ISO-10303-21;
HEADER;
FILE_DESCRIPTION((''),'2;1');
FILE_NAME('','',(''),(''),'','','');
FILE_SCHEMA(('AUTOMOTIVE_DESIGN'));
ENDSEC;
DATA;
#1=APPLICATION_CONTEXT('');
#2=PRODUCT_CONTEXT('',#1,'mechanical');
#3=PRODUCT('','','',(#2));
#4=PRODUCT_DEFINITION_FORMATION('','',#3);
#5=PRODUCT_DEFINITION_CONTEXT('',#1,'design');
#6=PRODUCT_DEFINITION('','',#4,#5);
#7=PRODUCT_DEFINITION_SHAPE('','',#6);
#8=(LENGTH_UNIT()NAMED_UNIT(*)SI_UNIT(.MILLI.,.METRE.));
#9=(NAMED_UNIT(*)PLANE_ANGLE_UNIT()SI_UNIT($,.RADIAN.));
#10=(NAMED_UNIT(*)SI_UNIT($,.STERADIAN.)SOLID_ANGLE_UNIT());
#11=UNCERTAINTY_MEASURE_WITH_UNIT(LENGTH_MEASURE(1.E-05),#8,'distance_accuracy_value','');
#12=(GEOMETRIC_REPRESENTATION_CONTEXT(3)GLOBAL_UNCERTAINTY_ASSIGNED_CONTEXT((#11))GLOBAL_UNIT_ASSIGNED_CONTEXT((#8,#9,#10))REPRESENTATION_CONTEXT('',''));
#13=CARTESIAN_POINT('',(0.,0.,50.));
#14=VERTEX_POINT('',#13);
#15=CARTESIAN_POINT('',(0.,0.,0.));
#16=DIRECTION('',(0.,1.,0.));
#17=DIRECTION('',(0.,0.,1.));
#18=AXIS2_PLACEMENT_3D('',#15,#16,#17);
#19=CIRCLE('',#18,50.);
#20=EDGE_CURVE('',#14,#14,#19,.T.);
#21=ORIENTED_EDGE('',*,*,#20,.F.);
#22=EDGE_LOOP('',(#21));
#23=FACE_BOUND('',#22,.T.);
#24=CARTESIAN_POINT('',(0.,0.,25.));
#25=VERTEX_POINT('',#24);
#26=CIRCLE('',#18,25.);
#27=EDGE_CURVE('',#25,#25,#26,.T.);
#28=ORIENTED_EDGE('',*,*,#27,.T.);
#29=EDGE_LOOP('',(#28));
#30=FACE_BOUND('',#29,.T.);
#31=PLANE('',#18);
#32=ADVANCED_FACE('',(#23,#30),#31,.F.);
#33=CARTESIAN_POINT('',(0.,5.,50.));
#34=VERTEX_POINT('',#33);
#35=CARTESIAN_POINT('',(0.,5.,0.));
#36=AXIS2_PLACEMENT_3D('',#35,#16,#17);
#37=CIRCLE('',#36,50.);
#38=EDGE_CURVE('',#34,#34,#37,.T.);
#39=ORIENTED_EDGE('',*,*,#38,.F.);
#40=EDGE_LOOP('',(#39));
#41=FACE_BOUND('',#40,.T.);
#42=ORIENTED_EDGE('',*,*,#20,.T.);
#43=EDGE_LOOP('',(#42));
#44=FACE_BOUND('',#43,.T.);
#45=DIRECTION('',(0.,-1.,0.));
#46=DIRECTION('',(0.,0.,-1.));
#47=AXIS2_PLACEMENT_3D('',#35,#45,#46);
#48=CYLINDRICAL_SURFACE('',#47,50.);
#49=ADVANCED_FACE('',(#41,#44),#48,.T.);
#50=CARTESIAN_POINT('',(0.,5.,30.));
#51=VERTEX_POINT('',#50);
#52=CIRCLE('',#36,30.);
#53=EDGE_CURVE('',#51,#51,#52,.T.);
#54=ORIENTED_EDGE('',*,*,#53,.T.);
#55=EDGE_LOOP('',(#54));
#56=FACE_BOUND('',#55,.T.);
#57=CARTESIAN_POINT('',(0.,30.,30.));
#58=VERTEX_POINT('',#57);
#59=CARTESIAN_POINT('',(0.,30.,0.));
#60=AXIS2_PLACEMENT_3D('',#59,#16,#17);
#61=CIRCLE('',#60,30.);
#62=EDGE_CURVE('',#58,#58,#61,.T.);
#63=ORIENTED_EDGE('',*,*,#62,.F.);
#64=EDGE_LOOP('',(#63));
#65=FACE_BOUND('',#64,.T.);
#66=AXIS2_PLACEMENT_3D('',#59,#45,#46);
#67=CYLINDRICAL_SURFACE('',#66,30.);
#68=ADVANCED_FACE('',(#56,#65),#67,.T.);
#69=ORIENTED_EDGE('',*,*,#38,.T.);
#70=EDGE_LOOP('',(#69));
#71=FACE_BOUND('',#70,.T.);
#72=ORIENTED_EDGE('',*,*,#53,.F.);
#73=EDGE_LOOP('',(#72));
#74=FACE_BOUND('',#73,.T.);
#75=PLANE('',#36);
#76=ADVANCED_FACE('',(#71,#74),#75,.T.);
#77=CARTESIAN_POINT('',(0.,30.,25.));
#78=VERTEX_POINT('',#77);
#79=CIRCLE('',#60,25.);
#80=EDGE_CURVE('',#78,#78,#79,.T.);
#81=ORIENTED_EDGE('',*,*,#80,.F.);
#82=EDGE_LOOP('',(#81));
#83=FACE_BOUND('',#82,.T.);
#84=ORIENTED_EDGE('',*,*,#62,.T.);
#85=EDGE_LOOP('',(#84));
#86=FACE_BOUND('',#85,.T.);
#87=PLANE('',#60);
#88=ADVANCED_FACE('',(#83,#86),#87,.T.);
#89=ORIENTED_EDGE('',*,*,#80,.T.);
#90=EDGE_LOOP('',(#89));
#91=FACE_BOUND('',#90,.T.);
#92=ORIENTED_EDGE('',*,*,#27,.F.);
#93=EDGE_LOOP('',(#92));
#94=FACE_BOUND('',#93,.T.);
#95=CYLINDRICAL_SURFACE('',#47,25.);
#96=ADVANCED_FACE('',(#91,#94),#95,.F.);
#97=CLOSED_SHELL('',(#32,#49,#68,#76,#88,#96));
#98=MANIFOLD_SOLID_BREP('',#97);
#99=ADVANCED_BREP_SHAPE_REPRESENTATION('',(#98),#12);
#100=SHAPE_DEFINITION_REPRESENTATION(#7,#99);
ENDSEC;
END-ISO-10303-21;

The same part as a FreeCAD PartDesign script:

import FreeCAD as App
import Part
import Sketcher

doc = App.newDocument("Part")
params = doc.addObject("Spreadsheet::Sheet", "Params")
for row, (alias, value) in enumerate([
    ("sketch1_diameter", "100 mm"),
    ("sketch1_diameter2", "50 mm"),
    ("pad1_length", "5 mm"),
    ("sketch2_diameter", "60 mm"),
    ("sketch2_diameter2", "50 mm"),
    ("pad2_length", "25 mm"),
], start=1):
    params.set(f"A{row}", alias)
    params.set(f"B{row}", "=" + value)
    params.setAlias(f"B{row}", alias)

body = doc.addObject("PartDesign::Body", "Body")

sketch1 = body.newObject("Sketcher::SketchObject", "Sketch")
sketch1.AttachmentSupport = (doc.getObject("XZ_Plane"), [""])
sketch1.MapMode = "FlatFace"
sketch1.addGeometry([
    Part.Circle(App.Vector(0, 0, 0), App.Vector(0, 0, 1), 50),
    Part.Circle(App.Vector(0, 0, 0), App.Vector(0, 0, 1), 25),
], False)
sketch1.addConstraint([
    Sketcher.Constraint("Coincident", 0, 3, -1, 1),
    Sketcher.Constraint("Coincident", 1, 3, -1, 1),
    Sketcher.Constraint("Diameter", 0, 100.0),
    Sketcher.Constraint("Diameter", 1, 50.0),
])
sketch1.setExpression("Constraints[2]", "Params.sketch1_diameter")
sketch1.setExpression("Constraints[3]", "Params.sketch1_diameter2")
pad1 = body.newObject("PartDesign::Pad", "Pad")
pad1.Profile = sketch1
pad1.setExpression("Length", "Params.pad1_length")
pad1.Reversed = True

sketch2 = body.newObject("Sketcher::SketchObject", "Sketch001")
sketch2.AttachmentSupport = (doc.getObject("XZ_Plane"), [""])
sketch2.MapMode = "FlatFace"
sketch2.AttachmentOffset = App.Placement(App.Vector(0, 0, -5), App.Rotation())
sketch2.addGeometry([
    Part.Circle(App.Vector(0, 0, 0), App.Vector(0, 0, 1), 30),
    Part.Circle(App.Vector(0, 0, 0), App.Vector(0, 0, 1), 25),
], False)
sketch2.addConstraint([
    Sketcher.Constraint("Coincident", 0, 3, -1, 1),
    Sketcher.Constraint("Coincident", 1, 3, -1, 1),
    Sketcher.Constraint("Diameter", 0, 60.0),
    Sketcher.Constraint("Diameter", 1, 50.0),
])
sketch2.setExpression("Constraints[2]", "Params.sketch2_diameter")
sketch2.setExpression("Constraints[3]", "Params.sketch2_diameter2")
pad2 = body.newObject("PartDesign::Pad", "Pad001")
pad2.Profile = sketch2
pad2.setExpression("Length", "Params.pad2_length")
pad2.Reversed = True

doc.recompute()
